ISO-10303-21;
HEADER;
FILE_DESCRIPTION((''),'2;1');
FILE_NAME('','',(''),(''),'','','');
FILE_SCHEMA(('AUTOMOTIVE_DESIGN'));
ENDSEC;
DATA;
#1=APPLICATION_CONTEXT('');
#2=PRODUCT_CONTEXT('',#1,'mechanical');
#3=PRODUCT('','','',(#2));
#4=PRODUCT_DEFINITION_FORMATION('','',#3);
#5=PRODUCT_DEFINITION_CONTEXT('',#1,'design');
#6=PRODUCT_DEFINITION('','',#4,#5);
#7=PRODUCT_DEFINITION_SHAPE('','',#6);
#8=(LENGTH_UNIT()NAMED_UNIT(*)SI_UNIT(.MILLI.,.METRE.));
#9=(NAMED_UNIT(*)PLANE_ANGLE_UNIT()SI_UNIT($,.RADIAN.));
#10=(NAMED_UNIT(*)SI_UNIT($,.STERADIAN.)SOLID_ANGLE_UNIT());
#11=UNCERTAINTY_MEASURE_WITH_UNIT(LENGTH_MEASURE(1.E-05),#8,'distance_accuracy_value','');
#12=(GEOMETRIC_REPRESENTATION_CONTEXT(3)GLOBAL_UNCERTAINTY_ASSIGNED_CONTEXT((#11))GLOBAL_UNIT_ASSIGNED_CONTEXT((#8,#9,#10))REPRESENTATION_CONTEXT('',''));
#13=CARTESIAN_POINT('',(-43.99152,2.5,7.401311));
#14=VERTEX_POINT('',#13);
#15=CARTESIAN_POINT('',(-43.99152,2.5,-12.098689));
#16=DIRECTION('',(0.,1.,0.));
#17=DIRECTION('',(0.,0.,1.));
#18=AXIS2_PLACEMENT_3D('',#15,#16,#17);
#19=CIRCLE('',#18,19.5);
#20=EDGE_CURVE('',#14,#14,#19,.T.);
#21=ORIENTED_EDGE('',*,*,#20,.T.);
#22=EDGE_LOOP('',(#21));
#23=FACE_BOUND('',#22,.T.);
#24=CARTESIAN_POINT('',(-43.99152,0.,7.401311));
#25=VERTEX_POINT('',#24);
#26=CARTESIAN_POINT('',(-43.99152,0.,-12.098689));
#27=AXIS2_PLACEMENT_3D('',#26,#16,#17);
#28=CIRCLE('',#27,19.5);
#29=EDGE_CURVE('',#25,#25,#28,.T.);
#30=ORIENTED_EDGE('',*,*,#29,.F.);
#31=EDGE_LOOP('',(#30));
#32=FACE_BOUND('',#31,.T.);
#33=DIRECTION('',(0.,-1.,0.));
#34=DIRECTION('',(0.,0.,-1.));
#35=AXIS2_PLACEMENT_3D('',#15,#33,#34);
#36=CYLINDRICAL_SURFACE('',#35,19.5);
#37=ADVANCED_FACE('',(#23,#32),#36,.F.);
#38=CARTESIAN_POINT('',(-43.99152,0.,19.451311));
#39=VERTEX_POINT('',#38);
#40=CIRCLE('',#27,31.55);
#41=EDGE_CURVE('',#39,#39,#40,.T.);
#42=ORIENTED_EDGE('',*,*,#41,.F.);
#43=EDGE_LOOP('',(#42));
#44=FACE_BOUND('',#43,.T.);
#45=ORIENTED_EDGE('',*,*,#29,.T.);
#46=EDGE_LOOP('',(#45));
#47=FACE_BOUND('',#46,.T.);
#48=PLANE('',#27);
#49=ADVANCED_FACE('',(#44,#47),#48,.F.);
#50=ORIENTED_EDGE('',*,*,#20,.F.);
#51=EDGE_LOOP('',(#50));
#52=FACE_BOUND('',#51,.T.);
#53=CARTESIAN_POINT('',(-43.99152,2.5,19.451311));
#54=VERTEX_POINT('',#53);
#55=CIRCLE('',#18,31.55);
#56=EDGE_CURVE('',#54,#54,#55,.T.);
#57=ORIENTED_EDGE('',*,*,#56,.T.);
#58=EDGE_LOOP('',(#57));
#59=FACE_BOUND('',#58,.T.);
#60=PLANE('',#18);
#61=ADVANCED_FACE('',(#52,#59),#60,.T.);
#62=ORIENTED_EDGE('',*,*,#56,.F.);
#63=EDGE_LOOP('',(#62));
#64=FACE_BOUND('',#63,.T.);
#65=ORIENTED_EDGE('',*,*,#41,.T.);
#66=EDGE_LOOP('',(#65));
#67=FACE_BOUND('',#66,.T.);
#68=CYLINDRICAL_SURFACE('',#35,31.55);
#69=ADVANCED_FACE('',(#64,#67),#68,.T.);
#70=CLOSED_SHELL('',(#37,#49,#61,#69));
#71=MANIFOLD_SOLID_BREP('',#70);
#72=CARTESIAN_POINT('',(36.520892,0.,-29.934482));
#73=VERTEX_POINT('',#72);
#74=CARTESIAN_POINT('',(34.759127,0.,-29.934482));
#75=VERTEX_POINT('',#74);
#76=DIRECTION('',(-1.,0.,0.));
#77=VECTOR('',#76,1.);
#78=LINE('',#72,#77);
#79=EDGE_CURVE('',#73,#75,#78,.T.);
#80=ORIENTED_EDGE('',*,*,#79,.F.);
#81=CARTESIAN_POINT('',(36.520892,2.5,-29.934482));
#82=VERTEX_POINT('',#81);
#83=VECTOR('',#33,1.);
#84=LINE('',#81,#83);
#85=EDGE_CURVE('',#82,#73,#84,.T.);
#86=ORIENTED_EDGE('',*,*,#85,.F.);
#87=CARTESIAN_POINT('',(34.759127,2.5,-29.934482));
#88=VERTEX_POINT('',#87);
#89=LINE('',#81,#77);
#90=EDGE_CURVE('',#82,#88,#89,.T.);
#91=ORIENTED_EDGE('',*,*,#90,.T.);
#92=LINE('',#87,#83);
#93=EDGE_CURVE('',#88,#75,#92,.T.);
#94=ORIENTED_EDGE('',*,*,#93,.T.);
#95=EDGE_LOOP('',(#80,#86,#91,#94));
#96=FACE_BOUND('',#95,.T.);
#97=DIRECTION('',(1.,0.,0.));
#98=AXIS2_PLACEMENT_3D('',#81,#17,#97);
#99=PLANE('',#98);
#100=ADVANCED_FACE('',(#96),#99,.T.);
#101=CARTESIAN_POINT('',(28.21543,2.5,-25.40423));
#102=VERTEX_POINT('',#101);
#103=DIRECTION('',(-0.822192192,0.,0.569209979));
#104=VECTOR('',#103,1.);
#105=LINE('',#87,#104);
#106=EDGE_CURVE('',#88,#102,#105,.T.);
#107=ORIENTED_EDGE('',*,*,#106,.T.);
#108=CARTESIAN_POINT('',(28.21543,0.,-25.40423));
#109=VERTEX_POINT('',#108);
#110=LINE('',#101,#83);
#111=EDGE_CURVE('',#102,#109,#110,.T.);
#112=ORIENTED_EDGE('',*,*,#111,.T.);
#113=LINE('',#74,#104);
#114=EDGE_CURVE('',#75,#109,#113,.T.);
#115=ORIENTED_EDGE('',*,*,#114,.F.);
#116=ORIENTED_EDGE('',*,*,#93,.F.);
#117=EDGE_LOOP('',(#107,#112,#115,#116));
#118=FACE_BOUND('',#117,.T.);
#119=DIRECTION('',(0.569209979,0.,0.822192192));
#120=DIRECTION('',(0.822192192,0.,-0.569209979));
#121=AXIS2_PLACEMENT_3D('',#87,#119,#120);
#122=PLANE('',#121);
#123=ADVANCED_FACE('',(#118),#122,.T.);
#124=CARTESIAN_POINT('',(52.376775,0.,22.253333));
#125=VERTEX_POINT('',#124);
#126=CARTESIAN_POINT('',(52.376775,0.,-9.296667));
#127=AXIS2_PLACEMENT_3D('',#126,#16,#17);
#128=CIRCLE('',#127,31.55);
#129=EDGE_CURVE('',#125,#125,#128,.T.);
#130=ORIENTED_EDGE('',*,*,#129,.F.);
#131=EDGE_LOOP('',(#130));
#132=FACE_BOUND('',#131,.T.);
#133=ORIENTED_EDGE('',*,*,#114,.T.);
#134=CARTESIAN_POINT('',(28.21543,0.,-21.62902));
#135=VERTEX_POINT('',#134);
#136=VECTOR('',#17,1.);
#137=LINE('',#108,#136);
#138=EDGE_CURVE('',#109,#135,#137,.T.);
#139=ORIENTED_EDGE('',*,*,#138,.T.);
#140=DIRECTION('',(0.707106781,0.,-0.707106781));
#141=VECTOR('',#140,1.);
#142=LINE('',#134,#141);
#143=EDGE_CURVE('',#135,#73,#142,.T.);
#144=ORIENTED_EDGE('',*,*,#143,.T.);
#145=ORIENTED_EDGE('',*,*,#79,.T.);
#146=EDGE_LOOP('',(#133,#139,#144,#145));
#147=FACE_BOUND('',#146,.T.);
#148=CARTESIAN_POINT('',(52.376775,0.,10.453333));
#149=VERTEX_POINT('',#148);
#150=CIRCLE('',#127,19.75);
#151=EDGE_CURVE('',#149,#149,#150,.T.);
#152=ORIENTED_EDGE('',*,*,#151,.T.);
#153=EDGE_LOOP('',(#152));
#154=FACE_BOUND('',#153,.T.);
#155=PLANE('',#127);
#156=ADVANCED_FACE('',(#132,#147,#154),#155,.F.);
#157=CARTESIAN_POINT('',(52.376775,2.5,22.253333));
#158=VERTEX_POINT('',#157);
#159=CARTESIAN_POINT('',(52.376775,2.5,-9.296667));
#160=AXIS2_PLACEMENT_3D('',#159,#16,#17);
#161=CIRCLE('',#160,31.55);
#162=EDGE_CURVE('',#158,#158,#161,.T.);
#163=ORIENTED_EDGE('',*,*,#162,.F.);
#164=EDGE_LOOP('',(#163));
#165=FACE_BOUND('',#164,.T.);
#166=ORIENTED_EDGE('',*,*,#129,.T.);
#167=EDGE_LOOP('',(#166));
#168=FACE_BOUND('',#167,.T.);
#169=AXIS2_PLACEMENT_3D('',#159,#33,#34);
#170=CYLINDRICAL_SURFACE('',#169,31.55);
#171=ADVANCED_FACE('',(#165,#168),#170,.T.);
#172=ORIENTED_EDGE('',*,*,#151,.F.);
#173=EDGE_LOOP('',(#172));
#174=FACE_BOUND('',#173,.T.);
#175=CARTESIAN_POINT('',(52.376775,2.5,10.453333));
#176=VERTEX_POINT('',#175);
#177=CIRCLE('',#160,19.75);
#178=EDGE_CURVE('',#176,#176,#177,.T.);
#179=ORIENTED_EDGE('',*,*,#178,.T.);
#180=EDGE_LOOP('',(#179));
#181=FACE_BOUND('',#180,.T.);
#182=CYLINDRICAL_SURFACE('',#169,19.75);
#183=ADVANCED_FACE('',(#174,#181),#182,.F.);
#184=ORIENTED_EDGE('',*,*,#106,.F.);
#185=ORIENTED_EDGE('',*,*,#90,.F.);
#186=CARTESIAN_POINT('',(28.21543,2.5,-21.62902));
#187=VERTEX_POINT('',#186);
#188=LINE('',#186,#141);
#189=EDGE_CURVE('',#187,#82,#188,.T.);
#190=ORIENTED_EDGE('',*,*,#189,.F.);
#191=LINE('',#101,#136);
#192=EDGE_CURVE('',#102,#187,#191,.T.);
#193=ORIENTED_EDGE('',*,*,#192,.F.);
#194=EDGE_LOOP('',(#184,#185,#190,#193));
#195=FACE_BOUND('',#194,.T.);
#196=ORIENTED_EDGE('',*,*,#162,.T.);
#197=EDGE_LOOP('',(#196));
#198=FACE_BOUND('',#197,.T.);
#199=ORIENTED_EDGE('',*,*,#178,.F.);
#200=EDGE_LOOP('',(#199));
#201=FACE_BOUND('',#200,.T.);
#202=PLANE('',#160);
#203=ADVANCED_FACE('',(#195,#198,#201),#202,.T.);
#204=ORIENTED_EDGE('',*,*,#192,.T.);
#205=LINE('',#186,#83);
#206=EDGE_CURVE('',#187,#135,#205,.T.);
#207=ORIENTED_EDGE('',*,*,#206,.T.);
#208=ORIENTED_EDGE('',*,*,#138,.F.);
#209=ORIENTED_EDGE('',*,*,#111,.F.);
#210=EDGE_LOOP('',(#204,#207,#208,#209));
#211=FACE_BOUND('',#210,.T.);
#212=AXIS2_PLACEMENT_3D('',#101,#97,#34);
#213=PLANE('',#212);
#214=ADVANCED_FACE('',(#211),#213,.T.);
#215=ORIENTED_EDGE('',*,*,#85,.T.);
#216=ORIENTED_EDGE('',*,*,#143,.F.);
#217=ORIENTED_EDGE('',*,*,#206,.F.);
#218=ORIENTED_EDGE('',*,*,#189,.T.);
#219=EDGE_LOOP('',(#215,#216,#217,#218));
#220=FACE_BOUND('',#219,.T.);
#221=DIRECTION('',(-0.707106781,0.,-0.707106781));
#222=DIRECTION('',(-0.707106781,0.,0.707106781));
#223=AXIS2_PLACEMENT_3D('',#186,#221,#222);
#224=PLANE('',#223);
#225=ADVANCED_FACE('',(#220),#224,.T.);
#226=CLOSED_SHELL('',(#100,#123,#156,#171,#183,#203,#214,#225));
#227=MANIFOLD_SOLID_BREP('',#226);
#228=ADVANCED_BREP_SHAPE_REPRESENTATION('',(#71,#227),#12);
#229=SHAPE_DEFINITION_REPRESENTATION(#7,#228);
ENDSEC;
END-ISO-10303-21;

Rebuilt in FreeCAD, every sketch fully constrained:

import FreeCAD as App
import Part
import Sketcher

V = App.Vector
Q = App.Units.Quantity

doc = App.newDocument("Part")
params = doc.addObject("Spreadsheet::Sheet", "Params")
for row, (alias, value) in enumerate([
    ("sketch1_diameter", "39 mm"),
    ("sketch1_diameter2", "63.1 mm"),
    ("pad1_length", "2.5 mm"),
    ("sketch2_diameter", "63.1 mm"),
    ("sketch2_diameter2", "39.5 mm"),
    ("pad2_length", "2.5 mm"),
], start=1):
    params.set(f"A{row}", alias)
    params.set(f"B{row}", "=" + value)
    params.setAlias(f"B{row}", alias)

body = doc.addObject("PartDesign::Body", "Body")

# Sketch on XZ plane
sketch1 = body.newObject("Sketcher::SketchObject", "Sketch")
sketch1.AttachmentSupport = (doc.getObject("XZ_Plane"), [""])
sketch1.MapMode = "FlatFace"
sketch1.addGeometry([
    Part.Circle(V(-43.99152, -12.098689, 0), V(0, 0, 1), 31.55),
    Part.Circle(V(-43.99152, -12.098689, 0), V(0, 0, 1), 19.5),
], False)
sketch1.addConstraint([
    Sketcher.Constraint("Coincident", 1, 3, 0, 3),
    Sketcher.Constraint("Diameter", 1, 39.0),
    Sketcher.Constraint("Diameter", 0, 63.1),
    Sketcher.Constraint("DistanceX", 0, 3, -1, 1, 43.99152),
    Sketcher.Constraint("DistanceY", 0, 3, -1, 1, 12.098689),
])
sketch1.setExpression("Constraints[1]", "Params.sketch1_diameter")
sketch1.setExpression("Constraints[2]", "Params.sketch1_diameter2")
pad1 = body.newObject("PartDesign::Pad", "Pad")
pad1.Profile = sketch1
pad1.setExpression("Length", "Params.pad1_length")
pad1.Reversed = True
body2 = doc.addObject("PartDesign::Body", "Body001")

# Sketch on XZ plane
sketch2 = body2.newObject("Sketcher::SketchObject", "Sketch001")
sketch2.AttachmentSupport = (doc.getObject("XZ_Plane001"), [""])
sketch2.MapMode = "FlatFace"
sketch2.addGeometry([
    Part.Circle(V(52.376775, -9.296667, 0), V(0, 0, 1), 31.55),  # 0
    Part.LineSegment(V(28.21543, -21.62902, 0), V(28.21543, -25.40423, 0)),  # 1
    Part.LineSegment(V(28.21543, -25.40423, 0), V(34.759127, -29.934482, 0)),  # 2
    Part.LineSegment(V(34.759127, -29.934482, 0), V(36.520892, -29.934482, 0)),  # 3
    Part.LineSegment(V(36.520892, -29.934482, 0), V(28.21543, -21.62902, 0)),  # 4
    Part.Circle(V(52.376775, -9.296667, 0), V(0, 0, 1), 19.75),  # 5
], False)
sketch2.addConstraint([
    Sketcher.Constraint("Coincident", 1, 2, 2, 1),
    Sketcher.Constraint("Coincident", 2, 2, 3, 1),
    Sketcher.Constraint("Coincident", 3, 2, 4, 1),
    Sketcher.Constraint("Coincident", 4, 2, 1, 1),
    Sketcher.Constraint("Vertical", 1),
    Sketcher.Constraint("Horizontal", 3),
    Sketcher.Constraint("Coincident", 5, 3, 0, 3),
    Sketcher.Constraint("Diameter", 0, 63.1),
    Sketcher.Constraint("Diameter", 5, 39.5),
    Sketcher.Constraint("Angle", 4, Q("135 deg")),
    Sketcher.Constraint("DistanceY", 1, 2, 1, 1, 3.77521),
    Sketcher.Constraint("Distance", 2, 7.958842),
    Sketcher.Constraint("DistanceX", 3, 1, 3, 2, 1.761765),
    Sketcher.Constraint("DistanceX", -1, 1, 1, 2, 28.21543),
    Sketcher.Constraint("DistanceY", 1, 2, -1, 1, 25.40423),
    Sketcher.Constraint("DistanceX", -1, 1, 0, 3, 52.376775),
    Sketcher.Constraint("DistanceY", 0, 3, -1, 1, 9.296667),
])
sketch2.setExpression("Constraints[7]", "Params.sketch2_diameter")
sketch2.setExpression("Constraints[8]", "Params.sketch2_diameter2")
pad2 = body2.newObject("PartDesign::Pad", "Pad001")
pad2.Profile = sketch2
pad2.setExpression("Length", "Params.pad2_length")
pad2.Reversed = True

doc.recompute()
